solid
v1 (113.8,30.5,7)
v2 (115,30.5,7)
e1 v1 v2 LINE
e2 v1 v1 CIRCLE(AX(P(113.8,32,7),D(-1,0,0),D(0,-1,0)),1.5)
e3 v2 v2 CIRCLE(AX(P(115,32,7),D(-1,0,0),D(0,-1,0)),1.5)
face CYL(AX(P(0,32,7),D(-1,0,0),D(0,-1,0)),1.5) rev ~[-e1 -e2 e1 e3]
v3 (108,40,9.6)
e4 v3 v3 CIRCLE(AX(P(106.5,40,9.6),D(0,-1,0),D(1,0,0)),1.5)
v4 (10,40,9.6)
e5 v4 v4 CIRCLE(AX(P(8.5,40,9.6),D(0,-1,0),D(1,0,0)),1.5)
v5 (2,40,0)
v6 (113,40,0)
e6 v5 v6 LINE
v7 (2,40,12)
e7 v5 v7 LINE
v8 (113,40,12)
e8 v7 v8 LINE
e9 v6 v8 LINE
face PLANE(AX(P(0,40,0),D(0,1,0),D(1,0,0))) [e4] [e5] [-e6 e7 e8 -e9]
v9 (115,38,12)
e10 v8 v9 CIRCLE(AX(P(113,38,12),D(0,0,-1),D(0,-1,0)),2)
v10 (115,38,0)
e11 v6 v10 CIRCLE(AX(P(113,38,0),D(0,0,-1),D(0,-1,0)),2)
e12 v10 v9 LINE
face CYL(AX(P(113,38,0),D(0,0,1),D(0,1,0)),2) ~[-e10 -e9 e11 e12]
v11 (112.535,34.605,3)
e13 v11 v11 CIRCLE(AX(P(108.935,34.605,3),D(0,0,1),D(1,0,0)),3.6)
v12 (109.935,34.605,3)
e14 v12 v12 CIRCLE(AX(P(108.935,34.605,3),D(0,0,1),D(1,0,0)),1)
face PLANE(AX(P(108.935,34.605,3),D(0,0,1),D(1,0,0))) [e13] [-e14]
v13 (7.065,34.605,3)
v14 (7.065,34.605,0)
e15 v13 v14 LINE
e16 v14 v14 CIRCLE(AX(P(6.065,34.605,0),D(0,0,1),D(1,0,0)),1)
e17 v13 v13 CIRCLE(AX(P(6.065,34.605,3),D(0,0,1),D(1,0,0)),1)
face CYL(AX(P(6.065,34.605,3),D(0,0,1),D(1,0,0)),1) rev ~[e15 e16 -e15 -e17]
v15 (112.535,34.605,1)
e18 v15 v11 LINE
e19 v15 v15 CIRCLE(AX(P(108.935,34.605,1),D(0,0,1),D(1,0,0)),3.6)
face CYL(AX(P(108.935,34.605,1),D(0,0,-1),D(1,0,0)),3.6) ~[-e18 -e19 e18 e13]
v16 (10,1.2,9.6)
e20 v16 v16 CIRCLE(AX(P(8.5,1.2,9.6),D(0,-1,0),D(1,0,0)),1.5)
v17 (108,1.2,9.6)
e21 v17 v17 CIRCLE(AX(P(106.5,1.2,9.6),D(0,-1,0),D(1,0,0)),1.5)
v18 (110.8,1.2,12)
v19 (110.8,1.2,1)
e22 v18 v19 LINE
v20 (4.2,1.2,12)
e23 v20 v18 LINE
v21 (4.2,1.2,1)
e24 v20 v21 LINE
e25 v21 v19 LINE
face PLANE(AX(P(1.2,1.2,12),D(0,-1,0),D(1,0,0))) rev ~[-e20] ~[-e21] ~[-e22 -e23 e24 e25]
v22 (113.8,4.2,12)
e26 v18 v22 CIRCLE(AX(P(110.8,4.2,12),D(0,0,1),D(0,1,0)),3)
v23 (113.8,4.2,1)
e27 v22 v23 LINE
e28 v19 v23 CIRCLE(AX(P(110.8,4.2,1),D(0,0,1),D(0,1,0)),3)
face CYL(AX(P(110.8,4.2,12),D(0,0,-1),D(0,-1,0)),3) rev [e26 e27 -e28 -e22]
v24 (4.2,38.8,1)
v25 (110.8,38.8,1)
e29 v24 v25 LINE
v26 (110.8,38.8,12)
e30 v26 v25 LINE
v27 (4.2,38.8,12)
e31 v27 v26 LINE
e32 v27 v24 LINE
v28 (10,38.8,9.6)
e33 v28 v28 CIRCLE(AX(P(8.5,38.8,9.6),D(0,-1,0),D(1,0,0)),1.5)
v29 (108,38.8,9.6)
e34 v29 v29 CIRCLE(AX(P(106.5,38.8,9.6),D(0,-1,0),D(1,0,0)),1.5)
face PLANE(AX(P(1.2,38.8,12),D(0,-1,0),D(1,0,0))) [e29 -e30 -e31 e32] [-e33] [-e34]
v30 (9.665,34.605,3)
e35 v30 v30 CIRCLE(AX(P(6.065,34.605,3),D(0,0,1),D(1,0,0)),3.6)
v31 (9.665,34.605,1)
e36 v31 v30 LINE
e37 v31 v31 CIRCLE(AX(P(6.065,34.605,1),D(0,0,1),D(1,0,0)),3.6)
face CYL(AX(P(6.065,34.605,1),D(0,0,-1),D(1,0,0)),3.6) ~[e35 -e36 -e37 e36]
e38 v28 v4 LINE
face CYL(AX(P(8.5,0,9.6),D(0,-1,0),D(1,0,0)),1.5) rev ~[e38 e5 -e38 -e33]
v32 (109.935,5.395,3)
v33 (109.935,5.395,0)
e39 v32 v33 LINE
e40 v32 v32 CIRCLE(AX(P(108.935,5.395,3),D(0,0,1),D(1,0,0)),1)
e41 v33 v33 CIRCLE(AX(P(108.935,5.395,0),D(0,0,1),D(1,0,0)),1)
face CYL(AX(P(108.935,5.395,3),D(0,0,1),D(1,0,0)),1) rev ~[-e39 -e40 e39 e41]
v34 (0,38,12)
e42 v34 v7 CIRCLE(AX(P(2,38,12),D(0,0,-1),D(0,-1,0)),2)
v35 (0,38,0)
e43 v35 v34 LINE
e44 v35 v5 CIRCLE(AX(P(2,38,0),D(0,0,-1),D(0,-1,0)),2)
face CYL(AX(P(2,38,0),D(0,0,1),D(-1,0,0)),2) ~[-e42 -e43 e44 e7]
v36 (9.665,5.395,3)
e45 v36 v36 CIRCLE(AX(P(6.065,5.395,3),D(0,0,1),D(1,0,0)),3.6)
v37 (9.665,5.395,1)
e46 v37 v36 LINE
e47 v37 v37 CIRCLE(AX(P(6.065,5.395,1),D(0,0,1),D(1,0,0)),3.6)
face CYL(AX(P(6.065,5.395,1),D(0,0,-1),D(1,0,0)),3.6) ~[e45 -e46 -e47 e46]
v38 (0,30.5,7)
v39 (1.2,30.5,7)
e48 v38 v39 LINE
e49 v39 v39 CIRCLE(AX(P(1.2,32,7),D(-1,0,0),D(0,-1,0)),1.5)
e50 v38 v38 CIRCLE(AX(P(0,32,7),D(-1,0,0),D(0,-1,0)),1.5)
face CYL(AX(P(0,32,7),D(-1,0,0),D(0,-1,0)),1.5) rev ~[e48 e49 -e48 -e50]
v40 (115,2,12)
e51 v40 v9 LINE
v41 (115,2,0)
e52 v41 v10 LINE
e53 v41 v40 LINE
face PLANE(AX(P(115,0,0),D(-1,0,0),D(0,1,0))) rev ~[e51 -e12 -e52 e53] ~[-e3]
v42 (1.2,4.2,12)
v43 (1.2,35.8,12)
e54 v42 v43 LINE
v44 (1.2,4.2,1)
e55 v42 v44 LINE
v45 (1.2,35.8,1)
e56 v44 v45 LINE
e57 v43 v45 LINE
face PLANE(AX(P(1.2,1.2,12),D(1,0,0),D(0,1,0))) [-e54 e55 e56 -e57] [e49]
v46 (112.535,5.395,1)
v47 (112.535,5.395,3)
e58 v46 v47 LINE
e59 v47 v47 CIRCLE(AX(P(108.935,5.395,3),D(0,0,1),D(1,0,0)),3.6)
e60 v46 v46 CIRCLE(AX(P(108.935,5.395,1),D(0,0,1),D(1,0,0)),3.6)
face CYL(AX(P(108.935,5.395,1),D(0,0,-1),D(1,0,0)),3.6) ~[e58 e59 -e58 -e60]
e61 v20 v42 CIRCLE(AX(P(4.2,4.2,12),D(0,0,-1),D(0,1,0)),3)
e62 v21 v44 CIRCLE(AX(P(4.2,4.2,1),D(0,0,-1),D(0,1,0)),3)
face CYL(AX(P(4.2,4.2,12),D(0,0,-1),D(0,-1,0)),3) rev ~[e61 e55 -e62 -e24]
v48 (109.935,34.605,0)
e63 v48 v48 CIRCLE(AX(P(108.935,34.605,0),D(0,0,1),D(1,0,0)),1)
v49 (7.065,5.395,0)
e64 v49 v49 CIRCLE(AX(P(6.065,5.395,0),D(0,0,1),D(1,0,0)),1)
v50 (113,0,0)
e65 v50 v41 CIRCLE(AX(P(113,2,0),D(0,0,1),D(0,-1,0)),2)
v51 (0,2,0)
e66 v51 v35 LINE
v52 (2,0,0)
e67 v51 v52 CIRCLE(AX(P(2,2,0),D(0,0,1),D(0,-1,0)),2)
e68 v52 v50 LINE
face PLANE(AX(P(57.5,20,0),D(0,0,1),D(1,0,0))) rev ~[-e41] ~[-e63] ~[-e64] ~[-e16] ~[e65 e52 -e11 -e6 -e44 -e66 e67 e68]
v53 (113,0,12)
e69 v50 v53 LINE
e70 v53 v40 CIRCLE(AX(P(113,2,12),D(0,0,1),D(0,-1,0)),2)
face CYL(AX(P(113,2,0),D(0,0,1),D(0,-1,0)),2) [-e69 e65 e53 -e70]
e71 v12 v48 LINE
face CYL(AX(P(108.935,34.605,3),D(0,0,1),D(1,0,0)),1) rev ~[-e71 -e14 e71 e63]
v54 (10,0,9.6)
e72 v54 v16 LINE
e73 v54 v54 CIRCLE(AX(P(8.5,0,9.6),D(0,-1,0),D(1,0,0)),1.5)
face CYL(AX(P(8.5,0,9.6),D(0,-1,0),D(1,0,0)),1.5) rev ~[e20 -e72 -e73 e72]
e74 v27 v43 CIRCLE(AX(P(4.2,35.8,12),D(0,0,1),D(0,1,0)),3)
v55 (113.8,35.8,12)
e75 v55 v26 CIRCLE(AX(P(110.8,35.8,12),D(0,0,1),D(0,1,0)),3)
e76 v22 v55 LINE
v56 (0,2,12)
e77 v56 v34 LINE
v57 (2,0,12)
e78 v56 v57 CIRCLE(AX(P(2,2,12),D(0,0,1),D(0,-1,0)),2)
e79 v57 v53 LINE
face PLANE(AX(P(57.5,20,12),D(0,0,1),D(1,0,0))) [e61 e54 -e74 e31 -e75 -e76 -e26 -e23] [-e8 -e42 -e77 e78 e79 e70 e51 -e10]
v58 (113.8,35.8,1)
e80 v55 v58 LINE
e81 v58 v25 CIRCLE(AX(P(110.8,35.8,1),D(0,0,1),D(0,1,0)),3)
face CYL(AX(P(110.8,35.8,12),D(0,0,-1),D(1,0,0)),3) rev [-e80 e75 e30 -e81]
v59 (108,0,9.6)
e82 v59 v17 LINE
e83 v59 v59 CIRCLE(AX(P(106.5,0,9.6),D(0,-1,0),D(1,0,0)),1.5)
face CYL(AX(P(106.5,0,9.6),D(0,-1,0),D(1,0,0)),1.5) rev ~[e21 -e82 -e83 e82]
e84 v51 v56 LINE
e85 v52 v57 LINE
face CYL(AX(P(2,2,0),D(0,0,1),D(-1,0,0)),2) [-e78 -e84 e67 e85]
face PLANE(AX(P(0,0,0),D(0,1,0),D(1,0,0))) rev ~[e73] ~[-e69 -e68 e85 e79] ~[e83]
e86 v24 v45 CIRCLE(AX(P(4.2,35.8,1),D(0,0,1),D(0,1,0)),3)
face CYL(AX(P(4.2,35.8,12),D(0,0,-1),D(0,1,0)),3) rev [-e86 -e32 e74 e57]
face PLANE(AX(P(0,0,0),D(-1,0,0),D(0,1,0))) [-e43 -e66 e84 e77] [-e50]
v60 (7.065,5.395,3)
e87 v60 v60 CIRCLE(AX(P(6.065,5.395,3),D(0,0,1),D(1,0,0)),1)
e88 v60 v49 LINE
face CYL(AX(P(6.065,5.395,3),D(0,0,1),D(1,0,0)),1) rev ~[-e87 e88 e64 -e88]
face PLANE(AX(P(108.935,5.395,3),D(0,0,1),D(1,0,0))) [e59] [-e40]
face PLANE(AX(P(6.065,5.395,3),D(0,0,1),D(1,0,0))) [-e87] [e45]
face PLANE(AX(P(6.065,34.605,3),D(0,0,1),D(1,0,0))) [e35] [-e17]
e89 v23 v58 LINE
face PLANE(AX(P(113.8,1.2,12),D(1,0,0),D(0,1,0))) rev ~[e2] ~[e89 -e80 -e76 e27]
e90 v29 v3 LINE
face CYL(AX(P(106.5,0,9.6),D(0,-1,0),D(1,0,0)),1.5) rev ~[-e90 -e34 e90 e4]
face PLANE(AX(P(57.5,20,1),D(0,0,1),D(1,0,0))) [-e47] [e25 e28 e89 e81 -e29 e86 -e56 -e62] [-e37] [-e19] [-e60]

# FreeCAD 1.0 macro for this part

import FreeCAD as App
import Part
import Sketcher
from FreeCAD import Vector
Q = App.Units.Quantity


def edges_at(feature, points):
    """Names of the edges that pass closest to the given points."""
    edges = feature.Shape.Edges
    near = lambda p: min(range(len(edges)), key=lambda i: edges[i].distToShape(Part.Vertex(*p))[0])
    return sorted({f"Edge{near(p) + 1}" for p in points})


def add_polygon(sketch, points):
    """Adds a closed chain of lines whose ends are joined by coincident constraints."""
    first, n = sketch.GeometryCount, len(points)
    for a, b in zip(points, points[1:] + points[:1]):
        sketch.addGeometry(Part.LineSegment(App.Vector(*a, 0), App.Vector(*b, 0)), False)
    for i in range(n):
        sketch.addConstraint(Sketcher.Constraint("Coincident", first + i, 2, first + (i + 1) % n, 1))

doc = App.newDocument("Part")
body = doc.addObject("PartDesign::Body", "Body")

# Sketch on XY plane
sketch1 = body.newObject("Sketcher::SketchObject", "Sketch")
sketch1.AttachmentSupport = (doc.getObject("XY_Plane"), [""])
sketch1.MapMode = "FlatFace"
add_polygon(sketch1, [(0, 40), (0, 0), (115, 0), (115, 40)])  # lines 0-3
sketch1.addConstraint(Sketcher.Constraint("Vertical", 0))
sketch1.addConstraint(Sketcher.Constraint("Horizontal", 1))
sketch1.addConstraint(Sketcher.Constraint("Vertical", 2))
sketch1.addConstraint(Sketcher.Constraint("Horizontal", 3))
sketch1.addConstraint(Sketcher.Constraint("Coincident", 0, 2, -1, 1))
sketch1.addConstraint(Sketcher.Constraint("DistanceX", 1, 1, 1, 2, Q("115 mm")))
sketch1.addConstraint(Sketcher.Constraint("DistanceY", 0, 2, 0, 1, Q("40 mm")))
pad1 = body.newObject("PartDesign::Pad", "Pad")
pad1.Profile = sketch1
pad1.Length = 12

# Sketch on XY plane
sketch2 = body.newObject("Sketcher::SketchObject", "Sketch001")
sketch2.AttachmentSupport = (doc.getObject("XY_Plane"), [""])
sketch2.MapMode = "FlatFace"
sketch2.AttachmentOffset = App.Placement(Vector(0, 0, 12), App.Rotation())
add_polygon(sketch2, [(1, 39), (1, 1), (114, 1), (114, 39)])  # lines 0-3
sketch2.addConstraint(Sketcher.Constraint("Vertical", 0))
sketch2.addConstraint(Sketcher.Constraint("Horizontal", 1))
sketch2.addConstraint(Sketcher.Constraint("Vertical", 2))
sketch2.addConstraint(Sketcher.Constraint("Horizontal", 3))
sketch2.addConstraint(Sketcher.Constraint("DistanceX", 1, 1, 1, 2, Q("112.6 mm")))
sketch2.addConstraint(Sketcher.Constraint("DistanceY", 0, 2, 0, 1, Q("37.6 mm")))
sketch2.addConstraint(Sketcher.Constraint("DistanceX", -1, 1, 0, 2, Q("1.2 mm")))
sketch2.addConstraint(Sketcher.Constraint("DistanceY", -1, 1, 0, 2, Q("1.2 mm")))
pocket1 = body.newObject("PartDesign::Pocket", "Pocket")
pocket1.Profile = sketch2
pocket1.Length = 11

# Sketch on XY plane
sketch3 = body.newObject("Sketcher::SketchObject", "Sketch002")
sketch3.AttachmentSupport = (doc.getObject("XY_Plane"), [""])
sketch3.MapMode = "FlatFace"
sketch3.AttachmentOffset = App.Placement(Vector(0, 0, 1), App.Rotation())
sketch3.addGeometry(Part.Circle(Vector(6.1, 34.6, 0), Vector(0, 0, 1), 3.6), False)
sketch3.addGeometry(Part.Circle(Vector(6.1, 5.4, 0), Vector(0, 0, 1), 3.6), False)
sketch3.addGeometry(Part.Circle(Vector(108.9, 34.6, 0), Vector(0, 0, 1), 3.6), False)
sketch3.addGeometry(Part.Circle(Vector(108.9, 5.4, 0), Vector(0, 0, 1), 3.6), False)
sketch3.addConstraint(Sketcher.Constraint("Equal", 0, 1))
sketch3.addConstraint(Sketcher.Constraint("Equal", 1, 2))
sketch3.addConstraint(Sketcher.Constraint("Equal", 2, 3))
sketch3.addConstraint(Sketcher.Constraint("Horizontal", 0, 3, 2, 3))
sketch3.addConstraint(Sketcher.Constraint("Horizontal", 1, 3, 3, 3))
sketch3.addConstraint(Sketcher.Constraint("Vertical", 0, 3, 1, 3))
sketch3.addConstraint(Sketcher.Constraint("Vertical", 2, 3, 3, 3))
sketch3.addConstraint(Sketcher.Constraint("Diameter", 0, Q("7.2 mm")))
sketch3.addConstraint(Sketcher.Constraint("DistanceY", 1, 3, 0, 3, Q("29.21 mm")))
sketch3.addConstraint(Sketcher.Constraint("DistanceX", 0, 3, 2, 3, Q("102.87 mm")))
sketch3.addConstraint(Sketcher.Constraint("DistanceX", -1, 1, 0, 3, Q("6.065 mm")))
sketch3.addConstraint(Sketcher.Constraint("DistanceY", -1, 1, 0, 3, Q("34.605 mm")))
pad2 = body.newObject("PartDesign::Pad", "Pad001")
pad2.Profile = sketch3
pad2.Length = 2

# Sketch on YZ plane
sketch4 = body.newObject("Sketcher::SketchObject", "Sketch003")
sketch4.AttachmentSupport = (doc.getObject("YZ_Plane"), [""])
sketch4.MapMode = "FlatFace"
sketch4.addGeometry(Part.Circle(Vector(32, 7, 0), Vector(0, 0, 1), 1.5), False)
sketch4.addConstraint(Sketcher.Constraint("Diameter", 0, Q("3 mm")))
sketch4.addConstraint(Sketcher.Constraint("DistanceX", -1, 1, 0, 3, Q("32 mm")))
sketch4.addConstraint(Sketcher.Constraint("DistanceY", -1, 1, 0, 3, Q("7 mm")))
pocket2 = body.newObject("PartDesign::Pocket", "Pocket001")
pocket2.Profile = sketch4
pocket2.Type = "ThroughAll"
pocket2.Reversed = True
doc.recompute()

fillet = body.newObject("PartDesign::Fillet", "Fillet")
fillet.Base = (pocket2, edges_at(pocket2, [
    (1.2, 38.8, 6.5),
    (1.2, 1.2, 6.5),
    (113.8, 1.2, 6.5),
    (113.8, 38.8, 6.5),
]))
fillet.Radius = 3
doc.recompute()

fillet2 = body.newObject("PartDesign::Fillet", "Fillet001")
fillet2.Base = (fillet, edges_at(fillet, [
    (115, 0, 6),
    (115, 40, 6),
    (0, 40, 6),
    (0, 0, 6),
]))
fillet2.Radius = 2

# Sketch on XZ plane
sketch5 = body.newObject("Sketcher::SketchObject", "Sketch004")
sketch5.AttachmentSupport = (doc.getObject("XZ_Plane"), [""])
sketch5.MapMode = "FlatFace"
sketch5.addGeometry(Part.Circle(Vector(8.5, 9.6, 0), Vector(0, 0, 1), 1.5), False)
sketch5.addGeometry(Part.Circle(Vector(106.5, 9.6, 0), Vector(0, 0, 1), 1.5), False)
sketch5.addConstraint(Sketcher.Constraint("Equal", 0, 1))
sketch5.addConstraint(Sketcher.Constraint("Horizontal", 0, 3, 1, 3))
sketch5.addConstraint(Sketcher.Constraint("Diameter", 0, Q("3 mm")))
sketch5.addConstraint(Sketcher.Constraint("DistanceX", 0, 3, 1, 3, Q("98 mm")))
sketch5.addConstraint(Sketcher.Constraint("DistanceX", -1, 1, 0, 3, Q("8.5 mm")))
sketch5.addConstraint(Sketcher.Constraint("DistanceY", -1, 1, 0, 3, Q("9.6 mm")))
pocket3 = body.newObject("PartDesign::Pocket", "Pocket002")
pocket3.Profile = sketch5
pocket3.Type = "ThroughAll"

# Sketch on XY plane
sketch6 = body.newObject("Sketcher::SketchObject", "Sketch005")
sketch6.AttachmentSupport = (doc.getObject("XY_Plane"), [""])
sketch6.MapMode = "FlatFace"
sketch6.AttachmentOffset = App.Placement(Vector(0, 0, 3), App.Rotation())
sketch6.addGeometry(Part.Circle(Vector(6.1, 34.6, 0), Vector(0, 0, 1), 1), False)
sketch6.addGeometry(Part.Circle(Vector(108.9, 34.6, 0), Vector(0, 0, 1), 1), False)
sketch6.addGeometry(Part.Circle(Vector(108.9, 5.4, 0), Vector(0, 0, 1), 1), False)
sketch6.addGeometry(Part.Circle(Vector(6.1, 5.4, 0), Vector(0, 0, 1), 1), False)
sketch6.addConstraint(Sketcher.Constraint("Equal", 0, 1))
sketch6.addConstraint(Sketcher.Constraint("Equal", 1, 2))
sketch6.addConstraint(Sketcher.Constraint("Equal", 2, 3))
sketch6.addConstraint(Sketcher.Constraint("Horizontal", 0, 3, 1, 3))
sketch6.addConstraint(Sketcher.Constraint("Horizontal", 2, 3, 3, 3))
sketch6.addConstraint(Sketcher.Constraint("Vertical", 1, 3, 2, 3))
sketch6.addConstraint(Sketcher.Constraint("Vertical", 0, 3, 3, 3))
sketch6.addConstraint(Sketcher.Constraint("Diameter", 0, Q("2 mm")))
sketch6.addConstraint(Sketcher.Constraint("DistanceX", 0, 3, 1, 3, Q("102.87 mm")))
sketch6.addConstraint(Sketcher.Constraint("DistanceY", 2, 3, 1, 3, Q("29.21 mm")))
sketch6.addConstraint(Sketcher.Constraint("DistanceX", -1, 1, 0, 3, Q("6.065 mm")))
sketch6.addConstraint(Sketcher.Constraint("DistanceY", -1, 1, 0, 3, Q("34.605 mm")))
pocket4 = body.newObject("PartDesign::Pocket", "Pocket003")
pocket4.Profile = sketch6
pocket4.Length = 6

doc.recompute()
